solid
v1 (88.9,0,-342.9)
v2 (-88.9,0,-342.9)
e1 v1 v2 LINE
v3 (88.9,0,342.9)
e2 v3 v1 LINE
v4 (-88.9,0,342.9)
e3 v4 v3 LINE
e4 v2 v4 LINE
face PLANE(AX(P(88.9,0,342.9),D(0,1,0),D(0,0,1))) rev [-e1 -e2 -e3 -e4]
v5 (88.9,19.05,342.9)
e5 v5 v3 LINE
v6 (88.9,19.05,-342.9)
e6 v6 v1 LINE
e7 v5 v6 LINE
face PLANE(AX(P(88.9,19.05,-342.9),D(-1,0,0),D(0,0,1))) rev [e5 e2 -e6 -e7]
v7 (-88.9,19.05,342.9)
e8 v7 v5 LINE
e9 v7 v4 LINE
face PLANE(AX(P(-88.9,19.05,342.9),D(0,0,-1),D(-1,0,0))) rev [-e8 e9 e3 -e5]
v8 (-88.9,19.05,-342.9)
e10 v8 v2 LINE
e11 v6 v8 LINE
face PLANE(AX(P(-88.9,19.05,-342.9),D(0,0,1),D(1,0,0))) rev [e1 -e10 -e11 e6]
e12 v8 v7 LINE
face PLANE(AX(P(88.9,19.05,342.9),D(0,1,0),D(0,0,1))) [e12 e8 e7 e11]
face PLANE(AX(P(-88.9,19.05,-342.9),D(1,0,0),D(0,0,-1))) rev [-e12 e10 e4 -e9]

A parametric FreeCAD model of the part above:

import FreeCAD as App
import Part
import Sketcher

V = App.Vector
Q = App.Units.Quantity

doc = App.newDocument("Part")
body = doc.addObject("PartDesign::Body", "Body")

# Sketch on XZ plane
sketch1 = body.newObject("Sketcher::SketchObject", "Sketch")
sketch1.AttachmentSupport = (doc.getObject("XZ_Plane"), [""])
sketch1.MapMode = "FlatFace"
sketch1.addGeometry([
    Part.LineSegment(V(-89, -343, 0), V(-89, 343, 0)),
    Part.LineSegment(V(-89, 343, 0), V(89, 343, 0)),
    Part.LineSegment(V(89, 343, 0), V(89, -343, 0)),
    Part.LineSegment(V(89, -343, 0), V(-89, -343, 0)),
], False)
sketch1.addConstraint([
    Sketcher.Constraint("Coincident", 0, 2, 1, 1),
    Sketcher.Constraint("Coincident", 1, 2, 2, 1),
    Sketcher.Constraint("Coincident", 2, 2, 3, 1),
    Sketcher.Constraint("Coincident", 3, 2, 0, 1),
    Sketcher.Constraint("Vertical", 0),
    Sketcher.Constraint("Horizontal", 1),
    Sketcher.Constraint("Vertical", 2),
    Sketcher.Constraint("Horizontal", 3),
    Sketcher.Constraint("Symmetric", 0, 2, 2, 2, -1, 1),
    Sketcher.Constraint("DistanceX", 1, 1, 1, 2, Q("7 in")),
    Sketcher.Constraint("DistanceY", 0, 1, 0, 2, Q("27 in")),
])
pad1 = body.newObject("PartDesign::Pad", "Pad")
pad1.Profile = sketch1
pad1.Length = Q("0.75 in")
pad1.Reversed = True

doc.recompute()
